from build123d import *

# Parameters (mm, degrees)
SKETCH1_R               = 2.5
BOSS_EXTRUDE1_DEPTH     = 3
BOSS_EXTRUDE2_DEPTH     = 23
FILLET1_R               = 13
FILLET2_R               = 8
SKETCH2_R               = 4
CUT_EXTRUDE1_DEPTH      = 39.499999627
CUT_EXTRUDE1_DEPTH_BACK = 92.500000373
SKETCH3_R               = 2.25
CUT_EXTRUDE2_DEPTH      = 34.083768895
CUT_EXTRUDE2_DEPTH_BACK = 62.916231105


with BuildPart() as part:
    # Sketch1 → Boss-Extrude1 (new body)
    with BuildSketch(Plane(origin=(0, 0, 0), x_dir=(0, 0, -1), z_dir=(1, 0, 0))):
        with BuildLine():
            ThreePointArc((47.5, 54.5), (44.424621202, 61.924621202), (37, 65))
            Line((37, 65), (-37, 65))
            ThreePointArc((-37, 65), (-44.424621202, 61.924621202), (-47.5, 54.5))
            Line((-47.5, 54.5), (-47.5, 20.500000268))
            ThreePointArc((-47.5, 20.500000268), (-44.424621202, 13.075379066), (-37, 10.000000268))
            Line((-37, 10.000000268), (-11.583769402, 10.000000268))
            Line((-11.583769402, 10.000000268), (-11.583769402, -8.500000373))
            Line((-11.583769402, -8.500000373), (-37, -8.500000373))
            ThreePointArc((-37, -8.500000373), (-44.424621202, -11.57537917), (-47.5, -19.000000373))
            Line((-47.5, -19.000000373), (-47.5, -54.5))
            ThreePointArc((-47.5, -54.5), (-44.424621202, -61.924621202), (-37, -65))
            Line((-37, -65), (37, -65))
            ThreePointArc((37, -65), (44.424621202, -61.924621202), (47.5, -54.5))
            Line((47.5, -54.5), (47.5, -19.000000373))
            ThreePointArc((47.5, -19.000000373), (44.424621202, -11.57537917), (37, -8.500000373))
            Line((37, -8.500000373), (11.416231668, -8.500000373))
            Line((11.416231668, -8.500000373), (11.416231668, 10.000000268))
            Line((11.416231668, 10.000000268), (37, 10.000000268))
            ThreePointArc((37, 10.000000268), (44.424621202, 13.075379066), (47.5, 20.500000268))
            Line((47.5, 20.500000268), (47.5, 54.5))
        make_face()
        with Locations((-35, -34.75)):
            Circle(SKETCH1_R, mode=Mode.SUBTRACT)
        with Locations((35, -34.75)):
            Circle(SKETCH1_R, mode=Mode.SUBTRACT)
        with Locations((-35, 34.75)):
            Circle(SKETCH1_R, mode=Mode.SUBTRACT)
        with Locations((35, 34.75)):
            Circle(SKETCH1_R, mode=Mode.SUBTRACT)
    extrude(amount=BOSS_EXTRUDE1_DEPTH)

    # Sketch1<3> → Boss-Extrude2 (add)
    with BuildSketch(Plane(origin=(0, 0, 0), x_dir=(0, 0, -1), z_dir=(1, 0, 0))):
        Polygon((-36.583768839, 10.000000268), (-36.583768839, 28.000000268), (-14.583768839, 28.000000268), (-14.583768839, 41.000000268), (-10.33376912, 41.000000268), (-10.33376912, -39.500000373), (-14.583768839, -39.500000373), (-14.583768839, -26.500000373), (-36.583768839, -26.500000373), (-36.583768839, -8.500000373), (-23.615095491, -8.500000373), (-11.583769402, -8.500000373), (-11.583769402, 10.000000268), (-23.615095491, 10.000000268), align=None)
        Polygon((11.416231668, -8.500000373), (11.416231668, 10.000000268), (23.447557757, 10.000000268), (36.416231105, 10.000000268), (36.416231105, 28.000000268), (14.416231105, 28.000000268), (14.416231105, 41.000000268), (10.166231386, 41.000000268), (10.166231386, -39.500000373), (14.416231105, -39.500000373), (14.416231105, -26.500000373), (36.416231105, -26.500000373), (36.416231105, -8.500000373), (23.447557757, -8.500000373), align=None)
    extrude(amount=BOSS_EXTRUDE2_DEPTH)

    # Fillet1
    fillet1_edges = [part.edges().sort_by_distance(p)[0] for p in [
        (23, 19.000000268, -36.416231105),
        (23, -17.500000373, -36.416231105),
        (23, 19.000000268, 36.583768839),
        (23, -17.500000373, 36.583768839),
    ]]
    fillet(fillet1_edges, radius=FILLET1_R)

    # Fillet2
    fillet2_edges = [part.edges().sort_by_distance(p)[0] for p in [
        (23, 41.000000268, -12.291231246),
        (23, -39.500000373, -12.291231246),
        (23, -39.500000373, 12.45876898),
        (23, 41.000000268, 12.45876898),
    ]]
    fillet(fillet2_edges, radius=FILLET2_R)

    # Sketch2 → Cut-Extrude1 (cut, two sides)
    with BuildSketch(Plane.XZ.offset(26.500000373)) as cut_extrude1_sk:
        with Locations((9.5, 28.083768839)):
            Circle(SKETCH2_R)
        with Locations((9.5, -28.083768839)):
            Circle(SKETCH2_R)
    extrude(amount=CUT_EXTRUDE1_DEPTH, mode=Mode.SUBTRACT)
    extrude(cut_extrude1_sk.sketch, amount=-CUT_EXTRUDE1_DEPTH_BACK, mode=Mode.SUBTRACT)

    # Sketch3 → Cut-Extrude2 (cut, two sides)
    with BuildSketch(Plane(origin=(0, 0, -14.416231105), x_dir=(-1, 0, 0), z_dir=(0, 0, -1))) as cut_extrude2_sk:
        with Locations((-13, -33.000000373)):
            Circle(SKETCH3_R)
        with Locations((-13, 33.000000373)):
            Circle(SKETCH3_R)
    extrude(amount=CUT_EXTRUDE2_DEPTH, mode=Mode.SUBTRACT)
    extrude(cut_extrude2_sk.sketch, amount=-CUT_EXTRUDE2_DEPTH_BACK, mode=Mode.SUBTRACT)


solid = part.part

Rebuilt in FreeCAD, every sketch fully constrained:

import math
import FreeCAD as App
import Part
import Sketcher


def edges_at(feature, points):
    """Names of the edges that pass closest to the given points."""
    edges = feature.Shape.Edges
    near = lambda p: min(range(len(edges)), key=lambda i: edges[i].distToShape(Part.Vertex(*p))[0])
    return sorted({f"Edge{near(p) + 1}" for p in points})

doc = App.newDocument("Part")
body = doc.addObject("PartDesign::Body", "Body")

# Sketch on YZ plane
sketch1 = body.newObject("Sketcher::SketchObject", "Sketch")
sketch1.AttachmentSupport = (doc.getObject("YZ_Plane"), [""])
sketch1.MapMode = "FlatFace"
sketch1.addGeometry(Part.ArcOfCircle(Part.Circle(App.Vector(54.5, -37, 0), App.Vector(0, 0, 1), 10.5), math.radians(-90), math.radians(0)), False)
sketch1.addGeometry(Part.LineSegment(App.Vector(65, -37, 0), App.Vector(65, 37, 0)), False)
sketch1.addGeometry(Part.ArcOfCircle(Part.Circle(App.Vector(54.5, 37, 0), App.Vector(0, 0, 1), 10.5), math.radians(0), math.radians(90)), False)
sketch1.addGeometry(Part.LineSegment(App.Vector(54.5, 47.5, 0), App.Vector(20.5, 47.5, 0)), False)
sketch1.addGeometry(Part.ArcOfCircle(Part.Circle(App.Vector(20.5, 37, 0), App.Vector(0, 0, 1), 10.5), math.radians(90), math.radians(180)), False)
sketch1.addGeometry(Part.LineSegment(App.Vector(10, 37, 0), App.Vector(10, 11.583769, 0)), False)
sketch1.addGeometry(Part.LineSegment(App.Vector(10, 11.583769, 0), App.Vector(-8.5, 11.583769, 0)), False)
sketch1.addGeometry(Part.LineSegment(App.Vector(-8.5, 11.583769, 0), App.Vector(-8.5, 37, 0)), False)
sketch1.addGeometry(Part.ArcOfCircle(Part.Circle(App.Vector(-19, 37, 0), App.Vector(0, 0, 1), 10.5), math.radians(0), math.radians(90)), False)
sketch1.addGeometry(Part.LineSegment(App.Vector(-19, 47.5, 0), App.Vector(-54.5, 47.5, 0)), False)
sketch1.addGeometry(Part.ArcOfCircle(Part.Circle(App.Vector(-54.5, 37, 0), App.Vector(0, 0, 1), 10.5), math.radians(90), math.radians(180)), False)
sketch1.addGeometry(Part.LineSegment(App.Vector(-65, 37, 0), App.Vector(-65, -37, 0)), False)
sketch1.addGeometry(Part.ArcOfCircle(Part.Circle(App.Vector(-54.5, -37, 0), App.Vector(0, 0, 1), 10.5), math.radians(-180), math.radians(-90)), False)
sketch1.addGeometry(Part.LineSegment(App.Vector(-54.5, -47.5, 0), App.Vector(-19, -47.5, 0)), False)
sketch1.addGeometry(Part.ArcOfCircle(Part.Circle(App.Vector(-19, -37, 0), App.Vector(0, 0, 1), 10.5), math.radians(-90), math.radians(0)), False)
sketch1.addGeometry(Part.LineSegment(App.Vector(-8.5, -37, 0), App.Vector(-8.5, -11.416232, 0)), False)
sketch1.addGeometry(Part.LineSegment(App.Vector(-8.5, -11.416232, 0), App.Vector(10, -11.416232, 0)), False)
sketch1.addGeometry(Part.LineSegment(App.Vector(10, -11.416232, 0), App.Vector(10, -37, 0)), False)
sketch1.addGeometry(Part.ArcOfCircle(Part.Circle(App.Vector(20.5, -37, 0), App.Vector(0, 0, 1), 10.5), math.radians(-180), math.radians(-90)), False)
sketch1.addGeometry(Part.LineSegment(App.Vector(20.5, -47.5, 0), App.Vector(54.5, -47.5, 0)), False)
sketch1.addGeometry(Part.Circle(App.Vector(-34.75, 35, 0), App.Vector(0, 0, 1), 2.5), False)
sketch1.addGeometry(Part.Circle(App.Vector(-34.75, -35, 0), App.Vector(0, 0, 1), 2.5), False)
sketch1.addGeometry(Part.Circle(App.Vector(34.75, 35, 0), App.Vector(0, 0, 1), 2.5), False)
sketch1.addGeometry(Part.Circle(App.Vector(34.75, -35, 0), App.Vector(0, 0, 1), 2.5), False)
sketch1.addConstraint(Sketcher.Constraint("Tangent", 0, 2, 1, 1))
sketch1.addConstraint(Sketcher.Constraint("Tangent", 1, 2, 2, 1))
sketch1.addConstraint(Sketcher.Constraint("Tangent", 2, 2, 3, 1))
sketch1.addConstraint(Sketcher.Constraint("Tangent", 3, 2, 4, 1))
sketch1.addConstraint(Sketcher.Constraint("Tangent", 4, 2, 5, 1))
sketch1.addConstraint(Sketcher.Constraint("Coincident", 5, 2, 6, 1))
sketch1.addConstraint(Sketcher.Constraint("Coincident", 6, 2, 7, 1))
sketch1.addConstraint(Sketcher.Constraint("Tangent", 7, 2, 8, 1))
sketch1.addConstraint(Sketcher.Constraint("Tangent", 8, 2, 9, 1))
sketch1.addConstraint(Sketcher.Constraint("Tangent", 9, 2, 10, 1))
sketch1.addConstraint(Sketcher.Constraint("Tangent", 10, 2, 11, 1))
sketch1.addConstraint(Sketcher.Constraint("Tangent", 11, 2, 12, 1))
sketch1.addConstraint(Sketcher.Constraint("Tangent", 12, 2, 13, 1))
sketch1.addConstraint(Sketcher.Constraint("Tangent", 13, 2, 14, 1))
sketch1.addConstraint(Sketcher.Constraint("Tangent", 14, 2, 15, 1))
sketch1.addConstraint(Sketcher.Constraint("Coincident", 15, 2, 16, 1))
sketch1.addConstraint(Sketcher.Constraint("Coincident", 16, 2, 17, 1))
sketch1.addConstraint(Sketcher.Constraint("Tangent", 17, 2, 18, 1))
sketch1.addConstraint(Sketcher.Constraint("Tangent", 18, 2, 19, 1))
sketch1.addConstraint(Sketcher.Constraint("Tangent", 19, 2, 0, 1))
sketch1.addConstraint(Sketcher.Constraint("Vertical", 1))
sketch1.addConstraint(Sketcher.Constraint("Horizontal", 3))
sketch1.addConstraint(Sketcher.Constraint("Vertical", 5))
sketch1.addConstraint(Sketcher.Constraint("Horizontal", 6))
sketch1.addConstraint(Sketcher.Constraint("Vertical", 7))
sketch1.addConstraint(Sketcher.Constraint("Horizontal", 9))
sketch1.addConstraint(Sketcher.Constraint("Vertical", 11))
sketch1.addConstraint(Sketcher.Constraint("Horizontal", 13))
sketch1.addConstraint(Sketcher.Constraint("Vertical", 15))
sketch1.addConstraint(Sketcher.Constraint("Horizontal", 16))
sketch1.addConstraint(Sketcher.Constraint("Vertical", 17))
sketch1.addConstraint(Sketcher.Constraint("Horizontal", 19))
sketch1.addConstraint(Sketcher.Constraint("Equal", 0, 2))
sketch1.addConstraint(Sketcher.Constraint("Equal", 2, 4))
sketch1.addConstraint(Sketcher.Constraint("Equal", 4, 8))
sketch1.addConstraint(Sketcher.Constraint("Equal", 8, 10))
sketch1.addConstraint(Sketcher.Constraint("Equal", 10, 12))
sketch1.addConstraint(Sketcher.Constraint("Equal", 12, 14))
sketch1.addConstraint(Sketcher.Constraint("Equal", 14, 18))
sketch1.addConstraint(Sketcher.Constraint("Equal", 20, 21))
sketch1.addConstraint(Sketcher.Constraint("Equal", 21, 22))
sketch1.addConstraint(Sketcher.Constraint("Equal", 22, 23))
sketch1.addConstraint(Sketcher.Constraint("Symmetric", 0, 3, 10, 3, -1, 1))
sketch1.addConstraint(Sketcher.Constraint("Symmetric", 21, 3, 22, 3, -1, 1))
sketch1.addConstraint(Sketcher.Constraint("Symmetric", 20, 3, 23, 3, -1, 1))
sketch1.addConstraint(Sketcher.Constraint("Symmetric", 20, 3, 22, 3, -2))
sketch1.addConstraint(Sketcher.Constraint("Symmetric", 8, 3, 14, 3, -1))
sketch1.addConstraint(Sketcher.Constraint("Symmetric", 4, 3, 18, 3, -1))
sketch1.addConstraint(Sketcher.Constraint("Diameter", 20, 5.0))
sketch1.addConstraint(Sketcher.Constraint("Radius", 0, 10.5))
sketch1.addConstraint(Sketcher.Constraint("DistanceX", 3, 2, 3, 1, 34.0))
sketch1.addConstraint(Sketcher.Constraint("DistanceY", 1, 1, 1, 2, 74.0))
sketch1.addConstraint(Sketcher.Constraint("DistanceX", 6, 2, 6, 1, 18.500001))
sketch1.addConstraint(Sketcher.Constraint("DistanceX", 9, 2, 9, 1, 35.5))
sketch1.addConstraint(Sketcher.Constraint("DistanceY", -1, 1, 20, 3, 35.0))
sketch1.addConstraint(Sketcher.Constraint("DistanceY", 15, 2, 6, 2, 23.000001))
sketch1.addConstraint(Sketcher.Constraint("DistanceX", 20, 3, 22, 3, 69.5))
sketch1.addConstraint(Sketcher.Constraint("DistanceY", 5, 2, 5, 1, 25.416231))
pad1 = body.newObject("PartDesign::Pad", "Pad")
pad1.Profile = sketch1
pad1.Length = 3

# Sketch on YZ plane
sketch2 = body.newObject("Sketcher::SketchObject", "Sketch001")
sketch2.AttachmentSupport = (doc.getObject("YZ_Plane"), [""])
sketch2.MapMode = "FlatFace"
sketch2.addGeometry(Part.LineSegment(App.Vector(28, 36.583769, 0), App.Vector(10, 36.583769, 0)), False)
sketch2.addGeometry(Part.LineSegment(App.Vector(10, 36.583769, 0), App.Vector(10, 11.583769, 0)), False)
sketch2.addGeometry(Part.LineSegment(App.Vector(10, 11.583769, 0), App.Vector(-8.5, 11.583769, 0)), False)
sketch2.addGeometry(Part.LineSegment(App.Vector(-8.5, 11.583769, 0), App.Vector(-8.5, 36.583769, 0)), False)
sketch2.addGeometry(Part.LineSegment(App.Vector(-8.5, 36.583769, 0), App.Vector(-26.5, 36.583769, 0)), False)
sketch2.addGeometry(Part.LineSegment(App.Vector(-26.5, 36.583769, 0), App.Vector(-26.5, 14.583769, 0)), False)
sketch2.addGeometry(Part.LineSegment(App.Vector(-26.5, 14.583769, 0), App.Vector(-39.5, 14.583769, 0)), False)
sketch2.addGeometry(Part.LineSegment(App.Vector(-39.5, 14.583769, 0), App.Vector(-39.5, 10.333769, 0)), False)
sketch2.addGeometry(Part.LineSegment(App.Vector(-39.5, 10.333769, 0), App.Vector(41, 10.333769, 0)), False)
sketch2.addGeometry(Part.LineSegment(App.Vector(41, 10.333769, 0), App.Vector(41, 14.583769, 0)), False)
sketch2.addGeometry(Part.LineSegment(App.Vector(41, 14.583769, 0), App.Vector(28, 14.583769, 0)), False)
sketch2.addGeometry(Part.LineSegment(App.Vector(28, 14.583769, 0), App.Vector(28, 36.583769, 0)), False)
sketch2.addGeometry(Part.LineSegment(App.Vector(-8.5, -11.416232, 0), App.Vector(10, -11.416232, 0)), False)
sketch2.addGeometry(Part.LineSegment(App.Vector(10, -11.416232, 0), App.Vector(10, -36.416231, 0)), False)
sketch2.addGeometry(Part.LineSegment(App.Vector(10, -36.416231, 0), App.Vector(28, -36.416231, 0)), False)
sketch2.addGeometry(Part.LineSegment(App.Vector(28, -36.416231, 0), App.Vector(28, -14.416231, 0)), False)
sketch2.addGeometry(Part.LineSegment(App.Vector(28, -14.416231, 0), App.Vector(41, -14.416231, 0)), False)
sketch2.addGeometry(Part.LineSegment(App.Vector(41, -14.416231, 0), App.Vector(41, -10.166231, 0)), False)
sketch2.addGeometry(Part.LineSegment(App.Vector(41, -10.166231, 0), App.Vector(-39.5, -10.166231, 0)), False)
sketch2.addGeometry(Part.LineSegment(App.Vector(-39.5, -10.166231, 0), App.Vector(-39.5, -14.416231, 0)), False)
sketch2.addGeometry(Part.LineSegment(App.Vector(-39.5, -14.416231, 0), App.Vector(-26.5, -14.416231, 0)), False)
sketch2.addGeometry(Part.LineSegment(App.Vector(-26.5, -14.416231, 0), App.Vector(-26.5, -36.416231, 0)), False)
sketch2.addGeometry(Part.LineSegment(App.Vector(-26.5, -36.416231, 0), App.Vector(-8.5, -36.416231, 0)), False)
sketch2.addGeometry(Part.LineSegment(App.Vector(-8.5, -36.416231, 0), App.Vector(-8.5, -11.416232, 0)), False)
sketch2.addConstraint(Sketcher.Constraint("Coincident", 0, 2, 1, 1))
sketch2.addConstraint(Sketcher.Constraint("Coincident", 1, 2, 2, 1))
sketch2.addConstraint(Sketcher.Constraint("Coincident", 2, 2, 3, 1))
sketch2.addConstraint(Sketcher.Constraint("Coincident", 3, 2, 4, 1))
sketch2.addConstraint(Sketcher.Constraint("Coincident", 4, 2, 5, 1))
sketch2.addConstraint(Sketcher.Constraint("Coincident", 5, 2, 6, 1))
sketch2.addConstraint(Sketcher.Constraint("Coincident", 6, 2, 7, 1))
sketch2.addConstraint(Sketcher.Constraint("Coincident", 7, 2, 8, 1))
sketch2.addConstraint(Sketcher.Constraint("Coincident", 8, 2, 9, 1))
sketch2.addConstraint(Sketcher.Constraint("Coincident", 9, 2, 10, 1))
sketch2.addConstraint(Sketcher.Constraint("Coincident", 10, 2, 11, 1))
sketch2.addConstraint(Sketcher.Constraint("Coincident", 11, 2, 0, 1))
sketch2.addConstraint(Sketcher.Constraint("Coincident", 12, 2, 13, 1))
sketch2.addConstraint(Sketcher.Constraint("Coincident", 13, 2, 14, 1))
sketch2.addConstraint(Sketcher.Constraint("Coincident", 14, 2, 15, 1))
sketch2.addConstraint(Sketcher.Constraint("Coincident", 15, 2, 16, 1))
sketch2.addConstraint(Sketcher.Constraint("Coincident", 16, 2, 17, 1))
sketch2.addConstraint(Sketcher.Constraint("Coincident", 17, 2, 18, 1))
sketch2.addConstraint(Sketcher.Constraint("Coincident", 18, 2, 19, 1))
sketch2.addConstraint(Sketcher.Constraint("Coincident", 19, 2, 20, 1))
sketch2.addConstraint(Sketcher.Constraint("Coincident", 20, 2, 21, 1))
sketch2.addConstraint(Sketcher.Constraint("Coincident", 21, 2, 22, 1))
sketch2.addConstraint(Sketcher.Constraint("Coincident", 22, 2, 23, 1))
sketch2.addConstraint(Sketcher.Constraint("Coincident", 23, 2, 12, 1))
sketch2.addConstraint(Sketcher.Constraint("Horizontal", 0))
sketch2.addConstraint(Sketcher.Constraint("Vertical", 1))
sketch2.addConstraint(Sketcher.Constraint("Horizontal", 2))
sketch2.addConstraint(Sketcher.Constraint("Vertical", 3))
sketch2.addConstraint(Sketcher.Constraint("Horizontal", 4))
sketch2.addConstraint(Sketcher.Constraint("Vertical", 5))
sketch2.addConstraint(Sketcher.Constraint("Horizontal", 6))
sketch2.addConstraint(Sketcher.Constraint("Vertical", 7))
sketch2.addConstraint(Sketcher.Constraint("Horizontal", 8))
sketch2.addConstraint(Sketcher.Constraint("Vertical", 9))
sketch2.addConstraint(Sketcher.Constraint("Horizontal", 10))
sketch2.addConstraint(Sketcher.Constraint("Vertical", 11))
sketch2.addConstraint(Sketcher.Constraint("Horizontal", 12))
sketch2.addConstraint(Sketcher.Constraint("Vertical", 13))
sketch2.addConstraint(Sketcher.Constraint("Horizontal", 14))
sketch2.addConstraint(Sketcher.Constraint("Vertical", 15))
sketch2.addConstraint(Sketcher.Constraint("Horizontal", 16))
sketch2.addConstraint(Sketcher.Constraint("Vertical", 17))
sketch2.addConstraint(Sketcher.Constraint("Horizontal", 18))
sketch2.addConstraint(Sketcher.Constraint("Vertical", 19))
sketch2.addConstraint(Sketcher.Constraint("Horizontal", 20))
sketch2.addConstraint(Sketcher.Constraint("Vertical", 21))
sketch2.addConstraint(Sketcher.Constraint("Horizontal", 22))
sketch2.addConstraint(Sketcher.Constraint("Vertical", 23))
sketch2.addConstraint(Sketcher.Constraint("Horizontal", 0, 2, 3, 2))
sketch2.addConstraint(Sketcher.Constraint("Horizontal", 6, 2, 9, 2))
sketch2.addConstraint(Sketcher.Constraint("Horizontal", 16, 2, 19, 2))
sketch2.addConstraint(Sketcher.Constraint("Horizontal", 14, 2, 21, 2))
sketch2.addConstraint(Sketcher.Constraint("Vertical", 1, 2, 12, 2))
sketch2.addConstraint(Sketcher.Constraint("Vertical", 11, 2, 14, 2))
sketch2.addConstraint(Sketcher.Constraint("Vertical", 9, 2, 16, 2))
sketch2.addConstraint(Sketcher.Constraint("Vertical", 7, 2, 18, 2))
sketch2.addConstraint(Sketcher.Constraint("Vertical", 5, 2, 20, 2))
sketch2.addConstraint(Sketcher.Constraint("Vertical", 3, 2, 22, 2))
sketch2.addConstraint(Sketcher.Constraint("Equal", 0, 4))
sketch2.addConstraint(Sketcher.Constraint("Equal", 6, 10))
sketch2.addConstraint(Sketcher.Constraint("Equal", 3, 13))
sketch2.addConstraint(Sketcher.Constraint("Equal", 11, 15))
sketch2.addConstraint(Sketcher.Constraint("Equal", 9, 17))
sketch2.addConstraint(Sketcher.Constraint("DistanceX", 0, 2, 0, 1, 18.0))
sketch2.addConstraint(Sketcher.Constraint("DistanceX", 6, 2, 6, 1, 13.0))
sketch2.addConstraint(Sketcher.Constraint("DistanceY", 1, 2, 1, 1, 24.999999))
sketch2.addConstraint(Sketcher.Constraint("DistanceY", 5, 2, 5, 1, 22.0))
sketch2.addConstraint(Sketcher.Constraint("DistanceX", 2, 2, 2, 1, 18.500001))
sketch2.addConstraint(Sketcher.Constraint("DistanceX", -1, 1, 0, 2, 10.0))
sketch2.addConstraint(Sketcher.Constraint("DistanceY", 12, 2, 1, 2, 23.000001))
sketch2.addConstraint(Sketcher.Constraint("DistanceY", 7, 2, 7, 1, 4.25))
sketch2.addConstraint(Sketcher.Constraint("DistanceY", -1, 1, 0, 2, 36.583769))
pad2 = body.newObject("PartDesign::Pad", "Pad001")
pad2.Profile = sketch2
pad2.Length = 23
doc.recompute()

fillet = body.newObject("PartDesign::Fillet", "Fillet")
fillet.Base = (pad2, edges_at(pad2, [
    (23, 19, -36.416),
    (23, -17.5, -36.416),
    (23, 19, 36.584),
    (23, -17.5, 36.584),
]))
fillet.Radius = 13
doc.recompute()

fillet2 = body.newObject("PartDesign::Fillet", "Fillet001")
fillet2.Base = (fillet, edges_at(fillet, [
    (23, 41, -12.291),
    (23, -39.5, -12.291),
    (23, -39.5, 12.459),
    (23, 41, 12.459),
]))
fillet2.Radius = 8

# Sketch on XZ plane
sketch3 = body.newObject("Sketcher::SketchObject", "Sketch002")
sketch3.AttachmentSupport = (doc.getObject("XZ_Plane"), [""])
sketch3.MapMode = "FlatFace"
sketch3.AttachmentOffset = App.Placement(App.Vector(0, 0, 26.5), App.Rotation())
sketch3.addGeometry(Part.Circle(App.Vector(9.5, 28.083769, 0), App.Vector(0, 0, 1), 4), False)
sketch3.addGeometry(Part.Circle(App.Vector(9.5, -28.083769, 0), App.Vector(0, 0, 1), 4), False)
sketch3.addConstraint(Sketcher.Constraint("Equal", 0, 1))
sketch3.addConstraint(Sketcher.Constraint("Symmetric", 0, 3, 1, 3, -1))
sketch3.addConstraint(Sketcher.Constraint("Diameter", 0, 8.0))
sketch3.addConstraint(Sketcher.Constraint("DistanceX", -1, 1, 0, 3, 9.5))
sketch3.addConstraint(Sketcher.Constraint("DistanceY", -1, 1, 0, 3, 28.083769))
pocket1 = body.newObject("PartDesign::Pocket", "Pocket")
pocket1.Profile = sketch3
pocket1.Type = "ThroughAll"
pocket1.Midplane = True

# Sketch on XY plane
sketch4 = body.newObject("Sketcher::SketchObject", "Sketch003")
sketch4.AttachmentSupport = (doc.getObject("XY_Plane"), [""])
sketch4.MapMode = "FlatFace"
sketch4.AttachmentOffset = App.Placement(App.Vector(0, 0, -14.416231), App.Rotation())
sketch4.addGeometry(Part.Circle(App.Vector(13, -33, 0), App.Vector(0, 0, 1), 2.25), False)
sketch4.addGeometry(Part.Circle(App.Vector(13, 33, 0), App.Vector(0, 0, 1), 2.25), False)
sketch4.addConstraint(Sketcher.Constraint("Equal", 0, 1))
sketch4.addConstraint(Sketcher.Constraint("Symmetric", 0, 3, 1, 3, -1))
sketch4.addConstraint(Sketcher.Constraint("Diameter", 0, 4.5))
sketch4.addConstraint(Sketcher.Constraint("DistanceX", -1, 1, 0, 3, 13.0))
sketch4.addConstraint(Sketcher.Constraint("DistanceY", 0, 3, -1, 1, 33.0))
pocket2 = body.newObject("PartDesign::Pocket", "Pocket001")
pocket2.Profile = sketch4
pocket2.Type = "ThroughAll"
pocket2.Midplane = True

doc.recompute()
